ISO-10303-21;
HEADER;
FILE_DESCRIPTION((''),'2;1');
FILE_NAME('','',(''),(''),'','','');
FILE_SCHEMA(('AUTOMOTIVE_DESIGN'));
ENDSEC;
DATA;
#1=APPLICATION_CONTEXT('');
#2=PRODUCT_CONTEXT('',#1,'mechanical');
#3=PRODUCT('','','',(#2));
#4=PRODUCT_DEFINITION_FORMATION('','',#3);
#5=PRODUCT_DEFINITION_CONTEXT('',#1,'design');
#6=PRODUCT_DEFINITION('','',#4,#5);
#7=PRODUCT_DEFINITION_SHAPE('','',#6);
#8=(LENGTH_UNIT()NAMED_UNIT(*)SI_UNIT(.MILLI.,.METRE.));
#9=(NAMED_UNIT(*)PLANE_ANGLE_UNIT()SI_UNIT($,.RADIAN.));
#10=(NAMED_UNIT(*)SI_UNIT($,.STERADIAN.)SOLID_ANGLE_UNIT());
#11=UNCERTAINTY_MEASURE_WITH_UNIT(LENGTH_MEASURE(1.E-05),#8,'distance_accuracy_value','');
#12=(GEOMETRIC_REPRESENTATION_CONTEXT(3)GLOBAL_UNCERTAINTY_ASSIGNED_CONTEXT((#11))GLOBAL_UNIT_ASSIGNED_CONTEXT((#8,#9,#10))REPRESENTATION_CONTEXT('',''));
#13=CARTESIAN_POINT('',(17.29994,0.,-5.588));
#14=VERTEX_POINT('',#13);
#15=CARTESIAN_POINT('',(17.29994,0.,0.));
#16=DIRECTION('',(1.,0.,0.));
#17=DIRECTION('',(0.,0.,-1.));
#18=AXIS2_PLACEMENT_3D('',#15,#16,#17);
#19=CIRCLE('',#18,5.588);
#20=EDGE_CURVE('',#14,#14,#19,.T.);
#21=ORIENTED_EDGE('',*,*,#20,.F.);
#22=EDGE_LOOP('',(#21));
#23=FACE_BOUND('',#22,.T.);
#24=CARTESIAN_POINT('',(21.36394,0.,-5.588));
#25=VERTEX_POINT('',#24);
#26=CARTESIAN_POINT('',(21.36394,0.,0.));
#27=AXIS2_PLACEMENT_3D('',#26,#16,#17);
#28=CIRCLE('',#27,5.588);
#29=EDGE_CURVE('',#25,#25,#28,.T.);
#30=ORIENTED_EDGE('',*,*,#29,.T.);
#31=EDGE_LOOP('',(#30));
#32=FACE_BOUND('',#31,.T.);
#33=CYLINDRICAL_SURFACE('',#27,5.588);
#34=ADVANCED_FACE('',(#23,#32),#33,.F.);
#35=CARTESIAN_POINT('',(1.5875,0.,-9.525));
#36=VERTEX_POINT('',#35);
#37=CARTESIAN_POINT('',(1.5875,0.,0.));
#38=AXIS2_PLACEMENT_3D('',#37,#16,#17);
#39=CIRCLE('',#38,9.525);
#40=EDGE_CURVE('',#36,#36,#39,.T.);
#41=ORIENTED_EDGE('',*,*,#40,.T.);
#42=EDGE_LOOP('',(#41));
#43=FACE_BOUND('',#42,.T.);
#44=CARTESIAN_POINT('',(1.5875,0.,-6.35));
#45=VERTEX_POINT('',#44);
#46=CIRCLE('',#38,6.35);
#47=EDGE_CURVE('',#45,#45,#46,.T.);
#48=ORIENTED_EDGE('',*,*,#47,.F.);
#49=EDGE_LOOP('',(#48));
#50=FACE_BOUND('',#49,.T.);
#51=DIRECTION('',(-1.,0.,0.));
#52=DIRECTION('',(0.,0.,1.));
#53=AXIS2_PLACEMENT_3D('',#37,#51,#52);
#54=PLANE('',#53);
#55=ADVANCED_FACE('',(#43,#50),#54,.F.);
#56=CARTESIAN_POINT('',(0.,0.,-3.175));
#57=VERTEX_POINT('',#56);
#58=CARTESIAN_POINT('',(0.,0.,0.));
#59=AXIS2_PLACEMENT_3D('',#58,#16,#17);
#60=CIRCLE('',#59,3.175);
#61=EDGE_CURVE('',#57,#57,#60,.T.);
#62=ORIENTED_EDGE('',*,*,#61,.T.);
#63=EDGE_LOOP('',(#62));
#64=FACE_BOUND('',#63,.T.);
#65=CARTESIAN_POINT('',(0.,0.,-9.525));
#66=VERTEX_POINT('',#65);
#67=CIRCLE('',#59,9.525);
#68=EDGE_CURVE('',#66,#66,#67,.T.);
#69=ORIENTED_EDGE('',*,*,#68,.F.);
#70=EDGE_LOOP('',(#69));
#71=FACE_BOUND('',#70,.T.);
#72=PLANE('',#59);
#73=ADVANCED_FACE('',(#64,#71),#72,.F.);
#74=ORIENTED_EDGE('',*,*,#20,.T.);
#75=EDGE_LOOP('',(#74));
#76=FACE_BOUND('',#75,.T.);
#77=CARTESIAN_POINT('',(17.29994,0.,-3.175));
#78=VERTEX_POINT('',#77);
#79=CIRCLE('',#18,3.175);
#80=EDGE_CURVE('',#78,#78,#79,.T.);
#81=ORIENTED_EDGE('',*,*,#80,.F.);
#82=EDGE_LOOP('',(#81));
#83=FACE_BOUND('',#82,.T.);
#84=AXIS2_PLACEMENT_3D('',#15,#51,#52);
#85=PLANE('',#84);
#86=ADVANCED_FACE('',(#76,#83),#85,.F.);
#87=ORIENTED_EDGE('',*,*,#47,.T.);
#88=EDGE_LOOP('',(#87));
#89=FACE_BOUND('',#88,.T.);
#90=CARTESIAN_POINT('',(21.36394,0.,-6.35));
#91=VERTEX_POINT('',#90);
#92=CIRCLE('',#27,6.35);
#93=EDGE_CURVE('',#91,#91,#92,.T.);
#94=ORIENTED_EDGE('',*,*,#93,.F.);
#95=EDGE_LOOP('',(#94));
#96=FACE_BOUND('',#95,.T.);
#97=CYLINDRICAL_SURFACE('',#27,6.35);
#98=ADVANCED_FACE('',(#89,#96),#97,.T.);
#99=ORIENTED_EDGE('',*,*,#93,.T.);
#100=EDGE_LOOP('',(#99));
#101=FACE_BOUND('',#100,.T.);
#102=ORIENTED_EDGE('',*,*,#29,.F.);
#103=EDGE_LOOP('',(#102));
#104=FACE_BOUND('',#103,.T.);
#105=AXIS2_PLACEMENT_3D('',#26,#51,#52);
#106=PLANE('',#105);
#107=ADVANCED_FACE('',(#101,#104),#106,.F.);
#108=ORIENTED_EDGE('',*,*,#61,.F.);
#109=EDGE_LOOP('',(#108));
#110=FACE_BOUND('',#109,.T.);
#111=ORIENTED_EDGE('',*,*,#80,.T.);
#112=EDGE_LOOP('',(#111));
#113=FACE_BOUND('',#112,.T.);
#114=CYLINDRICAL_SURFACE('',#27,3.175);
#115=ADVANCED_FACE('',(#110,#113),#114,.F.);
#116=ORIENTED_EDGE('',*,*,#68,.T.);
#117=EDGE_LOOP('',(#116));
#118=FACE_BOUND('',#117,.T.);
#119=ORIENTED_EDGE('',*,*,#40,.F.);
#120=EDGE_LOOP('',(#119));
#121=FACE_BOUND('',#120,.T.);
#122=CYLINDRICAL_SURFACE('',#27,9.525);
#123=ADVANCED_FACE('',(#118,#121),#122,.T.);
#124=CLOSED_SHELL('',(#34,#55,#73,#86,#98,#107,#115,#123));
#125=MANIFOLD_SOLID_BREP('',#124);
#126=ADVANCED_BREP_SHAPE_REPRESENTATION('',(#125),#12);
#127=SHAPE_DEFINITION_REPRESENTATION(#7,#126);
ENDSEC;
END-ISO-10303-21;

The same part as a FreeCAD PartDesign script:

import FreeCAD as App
import Part
import Sketcher

V = App.Vector
Q = App.Units.Quantity


def add_polygon(sketch, points):
    """Adds a closed chain of lines whose ends are joined by coincident constraints."""
    first, n = sketch.GeometryCount, len(points)
    for a, b in zip(points, points[1:] + points[:1]):
        sketch.addGeometry(Part.LineSegment(App.Vector(*a, 0), App.Vector(*b, 0)), False)
    for i in range(n):
        sketch.addConstraint(Sketcher.Constraint("Coincident", first + i, 2, first + (i + 1) % n, 1))

doc = App.newDocument("Part")
params = doc.addObject("Spreadsheet::Sheet", "Params")
for row, (alias, value) in enumerate([
    ("sketch1_width", "0.16 in"),
    ("sketch1_height", "0.25 in"),
    ("sketch1_height2", "0.03 in"),
    ("sketch1_width2", "0.0625 in"),
    ("sketch1_height3", "0.095 in"),
    ("revolution_angle", "360 deg"),
], start=1):
    params.set(f"A{row}", alias)
    params.set(f"B{row}", "=" + value)
    params.setAlias(f"B{row}", alias)

body = doc.addObject("PartDesign::Body", "Body")

# Sketch on XY plane
sketch1 = body.newObject("Sketcher::SketchObject", "Sketch")
sketch1.AttachmentSupport = (doc.getObject("XY_Plane"), [""])
sketch1.MapMode = "FlatFace"
add_polygon(sketch1, [(0, 9.5), (0, 3.2), (17.3, 3.2), (17.3, 5.6), (21.4, 5.6), (21.4, 6.3), (1.6, 6.3), (1.6, 9.5)])  # lines 0-7
sketch1.addConstraint([
    Sketcher.Constraint("Vertical", 0),
    Sketcher.Constraint("Horizontal", 1),
    Sketcher.Constraint("Vertical", 2),
    Sketcher.Constraint("Horizontal", 3),
    Sketcher.Constraint("Vertical", 4),
    Sketcher.Constraint("Horizontal", 5),
    Sketcher.Constraint("Vertical", 6),
    Sketcher.Constraint("Horizontal", 7),
    Sketcher.Constraint("PointOnObject", 0, 2, -2),
    Sketcher.Constraint("DistanceX", 3, 1, 3, 2, Q("0.16 in")),
    Sketcher.Constraint("DistanceY", 0, 2, 0, 1, Q("0.25 in")),
    Sketcher.Constraint("DistanceY", 4, 1, 4, 2, Q("0.03 in")),
    Sketcher.Constraint("DistanceX", 7, 2, 7, 1, Q("0.0625 in")),
    Sketcher.Constraint("DistanceY", 2, 1, 2, 2, Q("0.095 in")),
    Sketcher.Constraint("DistanceY", -1, 1, 2, 2, Q("0.22 in")),
    Sketcher.Constraint("DistanceX", 1, 1, 1, 2, Q("0.6811 in")),
])
sketch1.setExpression("Constraints[17]", "Params.sketch1_width")
sketch1.setExpression("Constraints[18]", "Params.sketch1_height")
sketch1.setExpression("Constraints[19]", "Params.sketch1_height2")
sketch1.setExpression("Constraints[20]", "Params.sketch1_width2")
sketch1.setExpression("Constraints[21]", "Params.sketch1_height3")
revolution = body.newObject("PartDesign::Revolution", "Revolution")
revolution.Profile = sketch1
revolution.ReferenceAxis = (sketch1, ["H_Axis"])
revolution.setExpression("Angle", "Params.revolution_angle")

doc.recompute()
